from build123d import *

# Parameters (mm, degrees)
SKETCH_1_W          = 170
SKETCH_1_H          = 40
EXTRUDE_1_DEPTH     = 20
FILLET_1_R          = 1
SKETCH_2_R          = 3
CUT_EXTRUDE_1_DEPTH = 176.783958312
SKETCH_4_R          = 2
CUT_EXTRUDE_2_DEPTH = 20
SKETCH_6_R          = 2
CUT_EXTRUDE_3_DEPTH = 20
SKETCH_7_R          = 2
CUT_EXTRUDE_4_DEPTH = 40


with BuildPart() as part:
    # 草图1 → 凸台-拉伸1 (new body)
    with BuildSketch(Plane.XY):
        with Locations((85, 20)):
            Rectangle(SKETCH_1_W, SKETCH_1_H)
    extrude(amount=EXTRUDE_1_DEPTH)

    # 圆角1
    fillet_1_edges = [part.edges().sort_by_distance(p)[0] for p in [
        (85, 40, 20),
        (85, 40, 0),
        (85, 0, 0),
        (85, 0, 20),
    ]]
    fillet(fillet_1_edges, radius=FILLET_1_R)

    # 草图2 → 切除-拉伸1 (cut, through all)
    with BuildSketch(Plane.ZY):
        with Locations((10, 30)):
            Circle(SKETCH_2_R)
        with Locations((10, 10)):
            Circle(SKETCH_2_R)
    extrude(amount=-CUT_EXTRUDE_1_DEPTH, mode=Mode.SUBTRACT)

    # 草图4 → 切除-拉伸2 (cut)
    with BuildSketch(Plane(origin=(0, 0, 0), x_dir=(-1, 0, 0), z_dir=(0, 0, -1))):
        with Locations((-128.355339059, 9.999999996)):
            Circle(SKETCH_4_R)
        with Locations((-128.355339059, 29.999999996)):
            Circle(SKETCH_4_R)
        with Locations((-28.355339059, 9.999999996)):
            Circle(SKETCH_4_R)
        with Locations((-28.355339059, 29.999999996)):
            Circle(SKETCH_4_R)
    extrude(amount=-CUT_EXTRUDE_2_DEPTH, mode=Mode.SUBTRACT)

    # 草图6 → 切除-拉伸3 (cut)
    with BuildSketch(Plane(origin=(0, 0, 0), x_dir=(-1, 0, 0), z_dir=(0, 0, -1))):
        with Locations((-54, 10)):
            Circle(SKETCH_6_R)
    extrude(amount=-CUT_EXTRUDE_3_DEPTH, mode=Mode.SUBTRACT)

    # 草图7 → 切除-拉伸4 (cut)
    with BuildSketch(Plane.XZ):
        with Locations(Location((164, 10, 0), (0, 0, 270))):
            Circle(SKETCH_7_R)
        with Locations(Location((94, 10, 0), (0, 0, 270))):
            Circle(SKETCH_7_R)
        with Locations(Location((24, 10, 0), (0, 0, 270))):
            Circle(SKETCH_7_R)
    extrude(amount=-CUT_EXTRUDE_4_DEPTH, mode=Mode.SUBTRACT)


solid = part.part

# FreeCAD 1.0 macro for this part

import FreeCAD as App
import Part
import Sketcher
from FreeCAD import Vector


def edges_at(feature, points):
    """Names of the edges that pass closest to the given points."""
    edges = feature.Shape.Edges
    near = lambda p: min(range(len(edges)), key=lambda i: edges[i].distToShape(Part.Vertex(*p))[0])
    return sorted({f"Edge{near(p) + 1}" for p in points})

doc = App.newDocument("Part")
params = doc.addObject("Spreadsheet::Sheet", "Params")
for row, (alias, value) in enumerate([
    ("sketch1_width", "170 mm"),
    ("sketch1_height", "40 mm"),
    ("pad1_length", "20 mm"),
    ("fillet_radius", "1 mm"),
    ("sketch2_diameter", "6 mm"),
    ("sketch3_diameter", "4 mm"),
    ("pocket2_length", "20 mm"),
    ("sketch4_diameter", "4 mm"),
    ("pocket3_length", "20 mm"),
    ("sketch5_diameter", "4 mm"),
    ("pocket4_length", "40 mm"),
], start=1):
    params.set(f"A{row}", alias)
    params.set(f"B{row}", "=" + value)
    params.setAlias(f"B{row}", alias)

body = doc.addObject("PartDesign::Body", "Body")

# Sketch on XY plane
sketch1 = doc.addObject("Sketcher::SketchObject", "Sketch")
body.addObject(sketch1)
sketch1.AttachmentSupport = (doc.XY_Plane, [""])
sketch1.MapMode = "FlatFace"
sketch1.addGeometry([
    Part.LineSegment(Vector(0, 40, 0), Vector(0, 0, 0)),
    Part.LineSegment(Vector(0, 0, 0), Vector(170, 0, 0)),
    Part.LineSegment(Vector(170, 0, 0), Vector(170, 40, 0)),
    Part.LineSegment(Vector(170, 40, 0), Vector(0, 40, 0)),
], False)
sketch1.addConstraint([
    Sketcher.Constraint("Coincident", 0, 2, 1, 1),
    Sketcher.Constraint("Coincident", 1, 2, 2, 1),
    Sketcher.Constraint("Coincident", 2, 2, 3, 1),
    Sketcher.Constraint("Coincident", 3, 2, 0, 1),
    Sketcher.Constraint("Vertical", 0),
    Sketcher.Constraint("Horizontal", 1),
    Sketcher.Constraint("Vertical", 2),
    Sketcher.Constraint("Horizontal", 3),
    Sketcher.Constraint("Coincident", 0, 2, -1, 1),
    Sketcher.Constraint("DistanceX", 1, 1, 1, 2, 170.0),
    Sketcher.Constraint("DistanceY", 0, 2, 0, 1, 40.0),
])
sketch1.setExpression("Constraints[9]", "Params.sketch1_width")
sketch1.setExpression("Constraints[10]", "Params.sketch1_height")
pad1 = doc.addObject("PartDesign::Pad", "Pad")
body.addObject(pad1)
pad1.Profile = sketch1
pad1.setExpression("Length", "Params.pad1_length")
doc.recompute()

fillet = doc.addObject("PartDesign::Fillet", "Fillet")
body.addObject(fillet)
fillet.Base = (pad1, edges_at(pad1, [
    (85, 40, 20),
    (85, 40, 0),
    (85, 0, 0),
    (85, 0, 20),
]))
fillet.setExpression("Radius", "Params.fillet_radius")

# Sketch on YZ plane
sketch2 = doc.addObject("Sketcher::SketchObject", "Sketch001")
body.addObject(sketch2)
sketch2.AttachmentSupport = (doc.YZ_Plane, [""])
sketch2.MapMode = "FlatFace"
sketch2.addGeometry([
    Part.Circle(Vector(30, 10, 0), Vector(0, 0, 1), 3),
    Part.Circle(Vector(10, 10, 0), Vector(0, 0, 1), 3),
], False)
sketch2.addConstraint([
    Sketcher.Constraint("Equal", 0, 1),
    Sketcher.Constraint("Horizontal", 0, 3, 1, 3),
    Sketcher.Constraint("Diameter", 0, 6.0),
    Sketcher.Constraint("DistanceX", -1, 1, 0, 3, 30.0),
    Sketcher.Constraint("DistanceY", -1, 1, 0, 3, 10.0),
    Sketcher.Constraint("DistanceX", -1, 1, 1, 3, 10.0),
])
sketch2.setExpression("Constraints[2]", "Params.sketch2_diameter")
pocket1 = doc.addObject("PartDesign::Pocket", "Pocket")
body.addObject(pocket1)
pocket1.Profile = sketch2
pocket1.Type = "ThroughAll"
pocket1.Reversed = True

# Sketch on XY plane
sketch3 = doc.addObject("Sketcher::SketchObject", "Sketch002")
body.addObject(sketch3)
sketch3.AttachmentSupport = (doc.XY_Plane, [""])
sketch3.MapMode = "FlatFace"
sketch3.addGeometry([
    Part.Circle(Vector(128.355339, 10, 0), Vector(0, 0, 1), 2),
    Part.Circle(Vector(128.355339, 30, 0), Vector(0, 0, 1), 2),
    Part.Circle(Vector(28.355339, 10, 0), Vector(0, 0, 1), 2),
    Part.Circle(Vector(28.355339, 30, 0), Vector(0, 0, 1), 2),
], False)
sketch3.addConstraint([
    Sketcher.Constraint("Equal", 0, 1),
    Sketcher.Constraint("Equal", 1, 2),
    Sketcher.Constraint("Equal", 2, 3),
    Sketcher.Constraint("Horizontal", 0, 3, 2, 3),
    Sketcher.Constraint("Horizontal", 1, 3, 3, 3),
    Sketcher.Constraint("Vertical", 0, 3, 1, 3),
    Sketcher.Constraint("Vertical", 2, 3, 3, 3),
    Sketcher.Constraint("Diameter", 0, 4.0),
    Sketcher.Constraint("DistanceY", -1, 1, 0, 3, 10.0),
    Sketcher.Constraint("DistanceY", -1, 1, 1, 3, 30.0),
    Sketcher.Constraint("DistanceX", 2, 3, 0, 3, 100.0),
    Sketcher.Constraint("DistanceX", -1, 1, 0, 3, 128.355339),
])
sketch3.setExpression("Constraints[7]", "Params.sketch3_diameter")
pocket2 = doc.addObject("PartDesign::Pocket", "Pocket001")
body.addObject(pocket2)
pocket2.Profile = sketch3
pocket2.setExpression("Length", "Params.pocket2_length")
pocket2.Reversed = True

# Sketch on XY plane
sketch4 = doc.addObject("Sketcher::SketchObject", "Sketch003")
body.addObject(sketch4)
sketch4.AttachmentSupport = (doc.XY_Plane, [""])
sketch4.MapMode = "FlatFace"
sketch4.addGeometry(Part.Circle(Vector(54, 10, 0), Vector(0, 0, 1), 2), False)
sketch4.addConstraint([
    Sketcher.Constraint("Diameter", 0, 4.0),
    Sketcher.Constraint("DistanceX", -1, 1, 0, 3, 54.0),
    Sketcher.Constraint("DistanceY", -1, 1, 0, 3, 10.0),
])
sketch4.setExpression("Constraints[0]", "Params.sketch4_diameter")
pocket3 = doc.addObject("PartDesign::Pocket", "Pocket002")
body.addObject(pocket3)
pocket3.Profile = sketch4
pocket3.setExpression("Length", "Params.pocket3_length")
pocket3.Reversed = True

# Sketch on XZ plane
sketch5 = doc.addObject("Sketcher::SketchObject", "Sketch004")
body.addObject(sketch5)
sketch5.AttachmentSupport = (doc.XZ_Plane, [""])
sketch5.MapMode = "FlatFace"
sketch5.addGeometry([
    Part.Circle(Vector(164, 10, 0), Vector(0, 0, 1), 2),
    Part.Circle(Vector(94, 10, 0), Vector(0, 0, 1), 2),
    Part.Circle(Vector(24, 10, 0), Vector(0, 0, 1), 2),
], False)
sketch5.addConstraint([
    Sketcher.Constraint("Equal", 0, 1),
    Sketcher.Constraint("Equal", 1, 2),
    Sketcher.Constraint("Horizontal", 0, 3, 1, 3),
    Sketcher.Constraint("Horizontal", 1, 3, 2, 3),
    Sketcher.Constraint("Diameter", 0, 4.0),
    Sketcher.Constraint("DistanceX", -1, 1, 0, 3, 164.0),
    Sketcher.Constraint("DistanceY", -1, 1, 0, 3, 10.0),
    Sketcher.Constraint("DistanceX", -1, 1, 1, 3, 94.0),
    Sketcher.Constraint("DistanceX", -1, 1, 2, 3, 24.0),
])
sketch5.setExpression("Constraints[4]", "Params.sketch5_diameter")
pocket4 = doc.addObject("PartDesign::Pocket", "Pocket003")
body.addObject(pocket4)
pocket4.Profile = sketch5
pocket4.setExpression("Length", "Params.pocket4_length")

doc.recompute()
